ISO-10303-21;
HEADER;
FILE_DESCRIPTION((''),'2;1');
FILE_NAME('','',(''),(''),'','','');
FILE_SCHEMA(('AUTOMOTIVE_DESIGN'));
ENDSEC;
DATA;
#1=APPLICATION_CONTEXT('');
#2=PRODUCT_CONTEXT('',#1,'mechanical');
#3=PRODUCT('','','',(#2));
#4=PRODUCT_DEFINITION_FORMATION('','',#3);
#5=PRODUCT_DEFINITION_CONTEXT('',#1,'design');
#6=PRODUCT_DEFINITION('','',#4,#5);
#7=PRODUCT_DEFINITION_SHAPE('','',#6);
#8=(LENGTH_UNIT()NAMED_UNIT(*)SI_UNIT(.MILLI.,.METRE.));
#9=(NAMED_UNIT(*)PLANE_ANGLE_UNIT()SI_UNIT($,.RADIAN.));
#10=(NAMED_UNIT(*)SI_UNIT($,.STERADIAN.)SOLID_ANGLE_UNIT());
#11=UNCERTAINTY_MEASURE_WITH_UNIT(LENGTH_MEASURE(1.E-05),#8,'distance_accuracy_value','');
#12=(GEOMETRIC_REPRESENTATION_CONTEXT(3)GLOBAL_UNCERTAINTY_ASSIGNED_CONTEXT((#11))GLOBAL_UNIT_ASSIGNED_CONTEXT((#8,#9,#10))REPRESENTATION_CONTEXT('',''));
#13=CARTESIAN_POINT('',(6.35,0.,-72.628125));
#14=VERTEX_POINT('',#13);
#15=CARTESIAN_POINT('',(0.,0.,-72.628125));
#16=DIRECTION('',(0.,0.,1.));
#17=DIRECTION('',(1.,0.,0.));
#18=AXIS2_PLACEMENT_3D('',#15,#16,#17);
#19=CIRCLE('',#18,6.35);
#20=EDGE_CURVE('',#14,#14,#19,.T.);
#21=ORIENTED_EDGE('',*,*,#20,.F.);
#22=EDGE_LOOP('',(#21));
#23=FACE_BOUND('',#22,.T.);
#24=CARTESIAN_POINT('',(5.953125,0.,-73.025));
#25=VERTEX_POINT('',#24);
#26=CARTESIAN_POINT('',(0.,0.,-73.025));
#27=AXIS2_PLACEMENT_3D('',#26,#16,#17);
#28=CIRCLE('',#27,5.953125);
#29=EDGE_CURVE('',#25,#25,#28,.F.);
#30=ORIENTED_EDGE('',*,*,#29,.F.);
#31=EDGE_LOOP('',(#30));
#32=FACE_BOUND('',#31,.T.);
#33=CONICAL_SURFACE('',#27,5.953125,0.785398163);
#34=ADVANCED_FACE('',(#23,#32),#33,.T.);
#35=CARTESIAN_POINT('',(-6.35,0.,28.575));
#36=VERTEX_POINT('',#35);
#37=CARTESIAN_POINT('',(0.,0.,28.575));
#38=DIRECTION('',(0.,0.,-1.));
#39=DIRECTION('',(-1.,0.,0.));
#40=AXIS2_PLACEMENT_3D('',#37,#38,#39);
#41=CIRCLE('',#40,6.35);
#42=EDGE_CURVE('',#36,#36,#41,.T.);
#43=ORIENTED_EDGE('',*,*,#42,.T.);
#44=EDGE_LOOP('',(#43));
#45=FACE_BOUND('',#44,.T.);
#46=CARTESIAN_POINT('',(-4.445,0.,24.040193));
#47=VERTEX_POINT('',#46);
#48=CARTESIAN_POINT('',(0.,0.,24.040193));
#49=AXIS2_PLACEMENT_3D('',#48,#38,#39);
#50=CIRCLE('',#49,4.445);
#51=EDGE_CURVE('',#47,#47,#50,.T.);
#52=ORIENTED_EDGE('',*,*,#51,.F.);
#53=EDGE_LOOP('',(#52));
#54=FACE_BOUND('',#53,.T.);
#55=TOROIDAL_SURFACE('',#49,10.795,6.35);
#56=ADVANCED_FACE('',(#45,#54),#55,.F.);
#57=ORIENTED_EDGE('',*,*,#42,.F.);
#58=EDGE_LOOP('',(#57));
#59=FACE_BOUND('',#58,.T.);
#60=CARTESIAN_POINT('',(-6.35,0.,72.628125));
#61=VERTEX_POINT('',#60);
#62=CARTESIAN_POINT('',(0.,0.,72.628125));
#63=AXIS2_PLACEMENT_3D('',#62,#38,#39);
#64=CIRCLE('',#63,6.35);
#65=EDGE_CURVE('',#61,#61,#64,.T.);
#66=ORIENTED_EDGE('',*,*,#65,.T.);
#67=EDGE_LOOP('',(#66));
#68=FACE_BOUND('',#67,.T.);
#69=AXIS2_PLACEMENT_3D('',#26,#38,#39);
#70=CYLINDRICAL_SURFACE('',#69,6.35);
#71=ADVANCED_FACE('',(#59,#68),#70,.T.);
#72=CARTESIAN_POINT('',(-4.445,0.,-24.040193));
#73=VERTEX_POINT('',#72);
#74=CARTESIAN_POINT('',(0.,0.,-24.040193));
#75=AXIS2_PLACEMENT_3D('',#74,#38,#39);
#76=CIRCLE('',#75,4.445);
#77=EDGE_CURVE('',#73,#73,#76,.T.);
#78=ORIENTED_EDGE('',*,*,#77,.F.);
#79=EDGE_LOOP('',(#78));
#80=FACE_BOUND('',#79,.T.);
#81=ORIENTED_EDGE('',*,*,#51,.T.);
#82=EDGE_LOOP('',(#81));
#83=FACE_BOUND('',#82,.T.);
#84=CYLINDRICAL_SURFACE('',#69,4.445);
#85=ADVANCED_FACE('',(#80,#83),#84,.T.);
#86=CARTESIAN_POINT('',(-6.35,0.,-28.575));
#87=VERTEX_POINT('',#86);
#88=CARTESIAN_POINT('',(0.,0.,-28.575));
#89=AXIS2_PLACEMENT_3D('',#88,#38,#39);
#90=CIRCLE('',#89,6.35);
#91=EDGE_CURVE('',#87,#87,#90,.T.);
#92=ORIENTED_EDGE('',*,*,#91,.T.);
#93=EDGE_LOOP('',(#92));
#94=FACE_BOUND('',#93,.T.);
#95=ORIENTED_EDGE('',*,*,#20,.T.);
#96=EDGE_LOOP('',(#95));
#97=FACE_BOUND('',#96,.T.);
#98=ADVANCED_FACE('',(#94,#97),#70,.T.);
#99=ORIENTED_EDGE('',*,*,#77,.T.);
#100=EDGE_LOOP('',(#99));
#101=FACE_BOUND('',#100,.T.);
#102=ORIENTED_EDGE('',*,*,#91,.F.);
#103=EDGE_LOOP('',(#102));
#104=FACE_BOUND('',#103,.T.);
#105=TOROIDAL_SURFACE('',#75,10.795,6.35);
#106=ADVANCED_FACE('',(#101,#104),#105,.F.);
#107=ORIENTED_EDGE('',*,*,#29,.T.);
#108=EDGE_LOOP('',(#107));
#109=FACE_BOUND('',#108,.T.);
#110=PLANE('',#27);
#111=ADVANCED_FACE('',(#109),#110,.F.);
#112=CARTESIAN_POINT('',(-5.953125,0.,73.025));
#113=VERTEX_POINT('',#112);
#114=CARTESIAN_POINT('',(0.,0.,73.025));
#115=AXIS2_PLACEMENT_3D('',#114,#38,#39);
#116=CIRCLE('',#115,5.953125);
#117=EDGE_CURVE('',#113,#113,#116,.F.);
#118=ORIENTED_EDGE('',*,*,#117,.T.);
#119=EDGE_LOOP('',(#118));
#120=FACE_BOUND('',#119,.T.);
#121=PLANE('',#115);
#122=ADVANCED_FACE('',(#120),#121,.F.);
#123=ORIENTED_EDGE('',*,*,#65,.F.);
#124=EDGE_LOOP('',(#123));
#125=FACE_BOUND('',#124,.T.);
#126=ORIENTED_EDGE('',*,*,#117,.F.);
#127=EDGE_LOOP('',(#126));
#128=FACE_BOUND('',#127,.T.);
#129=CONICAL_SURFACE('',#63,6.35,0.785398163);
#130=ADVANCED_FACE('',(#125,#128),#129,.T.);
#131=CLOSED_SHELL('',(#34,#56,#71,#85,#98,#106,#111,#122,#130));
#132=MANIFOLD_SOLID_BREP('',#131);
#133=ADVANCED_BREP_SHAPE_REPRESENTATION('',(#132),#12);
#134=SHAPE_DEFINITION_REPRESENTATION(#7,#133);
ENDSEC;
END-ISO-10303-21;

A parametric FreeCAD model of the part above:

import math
import FreeCAD as App
import Part
import Sketcher

V = App.Vector
Q = App.Units.Quantity


def edges_at(feature, points):
    """Names of the edges that pass closest to the given points."""
    edges = feature.Shape.Edges
    near = lambda p: min(range(len(edges)), key=lambda i: edges[i].distToShape(Part.Vertex(*p))[0])
    return sorted({f"Edge{near(p) + 1}" for p in points})

doc = App.newDocument("Part")
body = doc.addObject("PartDesign::Body", "Body")

# Sketch on XZ plane
sketch1 = body.newObject("Sketcher::SketchObject", "Sketch")
sketch1.AttachmentSupport = (doc.getObject("XZ_Plane"), [""])
sketch1.MapMode = "FlatFace"
sketch1.addGeometry([
    Part.LineSegment(V(0, -73.025, 0), V(0, 73.025, 0)),  # 0
    Part.LineSegment(V(0, 73.025, 0), V(6.35, 73.025, 0)),  # 1
    Part.LineSegment(V(6.35, 73.025, 0), V(6.35, 28.575, 0)),  # 2
    Part.ArcOfCircle(Part.Circle(V(10.795, 24.040193, 0), V(0, 0, 1), 6.35), math.radians(134.427004), math.radians(180)),  # 3
    Part.LineSegment(V(4.445, 24.040193, 0), V(4.445, -24.040193, 0)),  # 4
    Part.ArcOfCircle(Part.Circle(V(10.795, -24.040193, 0), V(0, 0, 1), 6.35), math.radians(-180), math.radians(-134.427004)),  # 5
    Part.LineSegment(V(6.35, -28.575, 0), V(6.35, -73.025, 0)),  # 6
    Part.LineSegment(V(6.35, -73.025, 0), V(0, -73.025, 0)),  # 7
], False)
sketch1.addConstraint([
    Sketcher.Constraint("Coincident", 0, 2, 1, 1),
    Sketcher.Constraint("Coincident", 1, 2, 2, 1),
    Sketcher.Constraint("Coincident", 2, 2, 3, 1),
    Sketcher.Constraint("Tangent", 3, 2, 4, 1),
    Sketcher.Constraint("Tangent", 4, 2, 5, 1),
    Sketcher.Constraint("Coincident", 5, 2, 6, 1),
    Sketcher.Constraint("Coincident", 6, 2, 7, 1),
    Sketcher.Constraint("Coincident", 7, 2, 0, 1),
    Sketcher.Constraint("Vertical", 0),
    Sketcher.Constraint("Horizontal", 1),
    Sketcher.Constraint("Vertical", 2),
    Sketcher.Constraint("Vertical", 4),
    Sketcher.Constraint("Vertical", 6),
    Sketcher.Constraint("Horizontal", 7),
    Sketcher.Constraint("Equal", 3, 5),
    Sketcher.Constraint("Symmetric", 0, 2, 7, 2, -1, 1),
    Sketcher.Constraint("Symmetric", 2, 2, 5, 2, -1),
    Sketcher.Constraint("Radius", 3, Q("0.25 in")),
    Sketcher.Constraint("DistanceX", 1, 1, 1, 2, Q("0.25 in")),
    Sketcher.Constraint("DistanceY", 0, 1, 0, 2, Q("5.75 in")),
    Sketcher.Constraint("DistanceY", 2, 2, 2, 1, Q("1.75 in")),
    Sketcher.Constraint("DistanceX", -1, 1, 3, 3, Q("0.425 in")),
])
revolution = body.newObject("PartDesign::Revolution", "Revolution")
revolution.Profile = sketch1
revolution.ReferenceAxis = (sketch1, ["V_Axis"])
revolution.Angle = 360
doc.recompute()

chamfer = body.newObject("PartDesign::Chamfer", "Chamfer")
chamfer.Base = (revolution, edges_at(revolution, [(-6.35, 0, 73.025), (-6.35, 0, -73.025)]))
chamfer.Size = Q("0.015625 in")

doc.recompute()
